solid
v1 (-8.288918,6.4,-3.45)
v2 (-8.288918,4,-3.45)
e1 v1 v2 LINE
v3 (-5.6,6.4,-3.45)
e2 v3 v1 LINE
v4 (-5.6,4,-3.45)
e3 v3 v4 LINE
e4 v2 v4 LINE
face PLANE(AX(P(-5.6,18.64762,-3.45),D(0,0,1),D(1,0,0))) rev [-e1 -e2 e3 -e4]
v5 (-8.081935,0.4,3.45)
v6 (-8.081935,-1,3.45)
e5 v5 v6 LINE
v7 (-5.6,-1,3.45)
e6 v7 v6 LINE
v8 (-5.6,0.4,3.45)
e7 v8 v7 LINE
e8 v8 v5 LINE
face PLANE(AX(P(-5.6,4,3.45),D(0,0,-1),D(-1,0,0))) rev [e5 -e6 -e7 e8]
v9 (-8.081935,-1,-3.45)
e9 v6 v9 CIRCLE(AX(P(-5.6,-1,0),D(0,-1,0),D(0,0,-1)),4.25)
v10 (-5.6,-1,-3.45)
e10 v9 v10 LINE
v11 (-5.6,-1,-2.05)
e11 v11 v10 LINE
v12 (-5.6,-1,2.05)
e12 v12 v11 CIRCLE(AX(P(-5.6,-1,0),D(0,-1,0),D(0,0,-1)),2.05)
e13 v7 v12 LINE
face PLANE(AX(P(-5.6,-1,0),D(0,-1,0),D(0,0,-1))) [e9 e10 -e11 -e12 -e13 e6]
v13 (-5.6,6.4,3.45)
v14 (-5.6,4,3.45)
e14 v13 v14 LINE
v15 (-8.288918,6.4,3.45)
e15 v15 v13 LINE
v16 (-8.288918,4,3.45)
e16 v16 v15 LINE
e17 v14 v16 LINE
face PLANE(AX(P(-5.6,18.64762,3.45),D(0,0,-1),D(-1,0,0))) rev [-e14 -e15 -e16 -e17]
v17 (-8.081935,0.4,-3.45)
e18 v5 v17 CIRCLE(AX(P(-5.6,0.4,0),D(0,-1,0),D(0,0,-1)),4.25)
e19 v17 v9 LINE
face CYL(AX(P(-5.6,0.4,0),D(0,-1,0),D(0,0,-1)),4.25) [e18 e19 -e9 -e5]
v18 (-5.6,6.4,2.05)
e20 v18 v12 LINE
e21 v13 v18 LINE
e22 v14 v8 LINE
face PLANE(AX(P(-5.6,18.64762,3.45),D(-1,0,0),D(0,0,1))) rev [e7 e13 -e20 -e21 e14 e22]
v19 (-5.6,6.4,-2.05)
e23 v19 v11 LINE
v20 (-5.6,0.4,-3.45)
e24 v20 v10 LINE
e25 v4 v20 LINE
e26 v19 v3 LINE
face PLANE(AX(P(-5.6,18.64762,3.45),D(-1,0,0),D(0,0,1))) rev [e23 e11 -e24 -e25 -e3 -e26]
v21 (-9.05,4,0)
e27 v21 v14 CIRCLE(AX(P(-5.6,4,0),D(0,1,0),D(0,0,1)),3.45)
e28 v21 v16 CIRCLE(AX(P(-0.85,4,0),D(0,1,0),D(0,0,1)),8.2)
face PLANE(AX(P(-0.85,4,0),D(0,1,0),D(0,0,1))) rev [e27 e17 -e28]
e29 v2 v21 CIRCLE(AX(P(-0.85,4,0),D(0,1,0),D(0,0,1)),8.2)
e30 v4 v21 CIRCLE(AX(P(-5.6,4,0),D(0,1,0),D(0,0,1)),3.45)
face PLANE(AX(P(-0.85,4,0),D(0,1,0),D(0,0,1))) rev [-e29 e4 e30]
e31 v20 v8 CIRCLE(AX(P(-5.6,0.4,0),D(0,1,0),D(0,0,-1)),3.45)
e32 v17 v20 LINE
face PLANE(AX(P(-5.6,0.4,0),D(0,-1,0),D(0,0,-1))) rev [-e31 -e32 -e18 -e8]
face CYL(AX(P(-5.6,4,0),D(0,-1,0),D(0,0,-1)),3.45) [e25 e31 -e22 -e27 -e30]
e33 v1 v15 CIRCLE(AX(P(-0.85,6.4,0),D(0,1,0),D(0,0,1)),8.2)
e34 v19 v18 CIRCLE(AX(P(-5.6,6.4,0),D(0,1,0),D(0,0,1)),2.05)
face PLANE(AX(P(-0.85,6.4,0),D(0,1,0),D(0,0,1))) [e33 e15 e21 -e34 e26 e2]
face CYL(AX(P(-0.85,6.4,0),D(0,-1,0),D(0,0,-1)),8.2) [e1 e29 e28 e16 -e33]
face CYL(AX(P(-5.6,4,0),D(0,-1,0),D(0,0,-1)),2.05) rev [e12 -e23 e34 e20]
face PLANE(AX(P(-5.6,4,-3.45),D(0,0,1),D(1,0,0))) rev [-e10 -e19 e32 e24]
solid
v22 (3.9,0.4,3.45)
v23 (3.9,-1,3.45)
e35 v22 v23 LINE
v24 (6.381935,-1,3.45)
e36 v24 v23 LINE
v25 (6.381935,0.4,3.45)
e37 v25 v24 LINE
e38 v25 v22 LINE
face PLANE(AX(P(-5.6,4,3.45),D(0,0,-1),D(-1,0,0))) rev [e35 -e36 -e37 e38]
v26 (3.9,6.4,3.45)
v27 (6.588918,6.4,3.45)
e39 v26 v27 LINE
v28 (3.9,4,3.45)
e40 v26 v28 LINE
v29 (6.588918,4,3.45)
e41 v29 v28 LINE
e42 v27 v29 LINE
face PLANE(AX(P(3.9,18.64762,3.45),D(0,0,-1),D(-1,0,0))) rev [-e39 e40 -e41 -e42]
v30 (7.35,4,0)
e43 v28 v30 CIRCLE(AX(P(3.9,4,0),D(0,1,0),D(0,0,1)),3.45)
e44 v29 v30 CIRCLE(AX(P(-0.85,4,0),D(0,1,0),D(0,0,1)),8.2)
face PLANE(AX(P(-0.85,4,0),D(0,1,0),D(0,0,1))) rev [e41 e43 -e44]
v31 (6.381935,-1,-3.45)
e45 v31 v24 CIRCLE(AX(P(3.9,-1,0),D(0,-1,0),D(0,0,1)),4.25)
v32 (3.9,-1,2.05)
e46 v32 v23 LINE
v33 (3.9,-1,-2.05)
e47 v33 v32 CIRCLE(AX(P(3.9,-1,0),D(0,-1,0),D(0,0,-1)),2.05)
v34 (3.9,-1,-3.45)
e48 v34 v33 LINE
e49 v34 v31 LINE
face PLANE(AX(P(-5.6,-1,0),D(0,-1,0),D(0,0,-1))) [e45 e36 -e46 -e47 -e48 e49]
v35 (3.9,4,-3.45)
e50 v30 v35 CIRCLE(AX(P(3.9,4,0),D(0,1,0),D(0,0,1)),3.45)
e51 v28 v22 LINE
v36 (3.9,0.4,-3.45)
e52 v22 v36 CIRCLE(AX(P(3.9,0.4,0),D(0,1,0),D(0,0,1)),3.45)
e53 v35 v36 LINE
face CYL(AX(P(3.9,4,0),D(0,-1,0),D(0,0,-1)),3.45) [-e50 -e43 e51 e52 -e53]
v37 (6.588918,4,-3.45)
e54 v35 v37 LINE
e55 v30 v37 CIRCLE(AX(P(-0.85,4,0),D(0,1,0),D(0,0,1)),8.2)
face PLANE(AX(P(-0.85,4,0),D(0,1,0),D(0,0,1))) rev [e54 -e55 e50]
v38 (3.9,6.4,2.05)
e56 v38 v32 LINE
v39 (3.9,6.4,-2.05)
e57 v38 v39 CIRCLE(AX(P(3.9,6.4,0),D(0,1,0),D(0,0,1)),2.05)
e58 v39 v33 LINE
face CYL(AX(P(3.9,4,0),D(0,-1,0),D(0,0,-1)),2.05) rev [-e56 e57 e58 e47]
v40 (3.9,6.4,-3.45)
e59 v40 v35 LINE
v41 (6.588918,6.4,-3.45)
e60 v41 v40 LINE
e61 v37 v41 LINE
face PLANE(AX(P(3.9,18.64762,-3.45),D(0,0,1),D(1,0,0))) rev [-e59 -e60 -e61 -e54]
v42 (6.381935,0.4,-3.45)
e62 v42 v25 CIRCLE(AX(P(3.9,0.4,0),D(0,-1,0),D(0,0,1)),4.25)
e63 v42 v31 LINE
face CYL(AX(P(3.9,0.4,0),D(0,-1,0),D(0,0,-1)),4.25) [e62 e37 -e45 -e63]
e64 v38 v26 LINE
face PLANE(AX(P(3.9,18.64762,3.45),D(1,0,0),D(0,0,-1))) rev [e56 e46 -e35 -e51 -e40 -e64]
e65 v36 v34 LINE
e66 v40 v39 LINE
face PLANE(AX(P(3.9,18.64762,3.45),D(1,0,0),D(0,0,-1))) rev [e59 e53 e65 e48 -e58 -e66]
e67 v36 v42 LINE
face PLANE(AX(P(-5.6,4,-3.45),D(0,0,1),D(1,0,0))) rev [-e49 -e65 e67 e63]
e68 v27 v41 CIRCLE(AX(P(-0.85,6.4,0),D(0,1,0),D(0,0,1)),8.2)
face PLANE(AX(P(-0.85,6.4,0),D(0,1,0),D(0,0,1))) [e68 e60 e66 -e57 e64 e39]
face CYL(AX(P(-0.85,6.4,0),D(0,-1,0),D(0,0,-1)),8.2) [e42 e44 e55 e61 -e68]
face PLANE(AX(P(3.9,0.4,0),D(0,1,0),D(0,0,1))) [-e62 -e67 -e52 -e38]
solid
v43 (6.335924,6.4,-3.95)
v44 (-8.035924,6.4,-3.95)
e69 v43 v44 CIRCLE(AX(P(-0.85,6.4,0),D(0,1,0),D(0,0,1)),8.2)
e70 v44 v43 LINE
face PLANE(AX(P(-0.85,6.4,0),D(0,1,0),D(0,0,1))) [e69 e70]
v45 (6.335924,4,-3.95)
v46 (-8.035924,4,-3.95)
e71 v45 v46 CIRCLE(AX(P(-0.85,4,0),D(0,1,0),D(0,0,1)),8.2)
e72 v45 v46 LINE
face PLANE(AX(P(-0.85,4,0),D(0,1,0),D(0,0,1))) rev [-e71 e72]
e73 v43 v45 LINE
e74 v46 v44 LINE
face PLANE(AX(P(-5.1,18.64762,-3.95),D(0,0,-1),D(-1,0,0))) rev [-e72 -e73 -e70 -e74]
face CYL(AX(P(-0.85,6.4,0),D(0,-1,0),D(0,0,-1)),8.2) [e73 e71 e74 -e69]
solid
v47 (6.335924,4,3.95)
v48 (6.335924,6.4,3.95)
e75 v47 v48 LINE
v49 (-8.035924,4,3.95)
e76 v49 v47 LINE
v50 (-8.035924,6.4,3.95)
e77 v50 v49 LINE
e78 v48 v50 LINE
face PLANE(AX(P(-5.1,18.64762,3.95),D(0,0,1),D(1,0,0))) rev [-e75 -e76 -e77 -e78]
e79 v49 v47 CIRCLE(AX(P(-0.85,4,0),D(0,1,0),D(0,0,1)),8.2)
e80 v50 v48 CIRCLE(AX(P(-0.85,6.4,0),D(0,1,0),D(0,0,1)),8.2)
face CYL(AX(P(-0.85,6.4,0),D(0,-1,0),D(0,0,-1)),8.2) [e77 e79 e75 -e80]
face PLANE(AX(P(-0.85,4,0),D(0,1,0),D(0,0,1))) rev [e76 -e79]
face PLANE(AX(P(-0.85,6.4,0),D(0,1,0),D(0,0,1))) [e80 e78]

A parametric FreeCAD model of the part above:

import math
import FreeCAD as App
import Part
import Sketcher
from FreeCAD import Vector

doc = App.newDocument("Part")
body = doc.addObject("PartDesign::Body", "Body")
body.AllowCompound = True

# Sketch on XZ plane
sketch1 = doc.addObject("Sketcher::SketchObject", "Sketch")
body.addObject(sketch1)
sketch1.AttachmentSupport = (doc.XZ_Plane, [""])
sketch1.MapMode = "FlatFace"
sketch1.addGeometry([
    Part.LineSegment(Vector(3.9, -3.45, 0), Vector(-5.6, -3.45, 0)),  # 0
    Part.ArcOfCircle(Part.Circle(Vector(-5.6, 0, 0), Vector(0, 0, 1), 3.45), math.radians(90), math.radians(270)),  # 1
    Part.LineSegment(Vector(-5.6, 3.45, 0), Vector(3.9, 3.45, 0)),  # 2
    Part.ArcOfCircle(Part.Circle(Vector(3.9, 0, 0), Vector(0, 0, 1), 3.45), math.radians(-90), math.radians(90)),  # 3
    Part.LineSegment(Vector(-5.6, -2.05, 0), Vector(3.9, -2.05, 0)),  # 4
    Part.ArcOfCircle(Part.Circle(Vector(3.9, 0, 0), Vector(0, 0, 1), 2.05), math.radians(-90), math.radians(90)),  # 5
    Part.LineSegment(Vector(3.9, 2.05, 0), Vector(-5.6, 2.05, 0)),  # 6
    Part.ArcOfCircle(Part.Circle(Vector(-5.6, 0, 0), Vector(0, 0, 1), 2.05), math.radians(90), math.radians(270)),  # 7
], False)
sketch1.addConstraint([
    Sketcher.Constraint("Tangent", 0, 2, 1, 2),
    Sketcher.Constraint("Tangent", 1, 1, 2, 1),
    Sketcher.Constraint("Tangent", 2, 2, 3, 2),
    Sketcher.Constraint("Tangent", 3, 1, 0, 1),
    Sketcher.Constraint("Tangent", 4, 2, 5, 1),
    Sketcher.Constraint("Tangent", 5, 2, 6, 1),
    Sketcher.Constraint("Tangent", 6, 2, 7, 1),
    Sketcher.Constraint("Tangent", 7, 2, 4, 1),
    Sketcher.Constraint("Horizontal", 0),
    Sketcher.Constraint("Horizontal", 2),
    Sketcher.Constraint("Horizontal", 4),
    Sketcher.Constraint("Horizontal", 6),
    Sketcher.Constraint("Coincident", 5, 3, 3, 3),
    Sketcher.Constraint("PointOnObject", 1, 3, -1),
    Sketcher.Constraint("Vertical", 7, 3, 0, 2),
    Sketcher.Constraint("Radius", 1, 3.45),
    Sketcher.Constraint("Radius", 5, 2.05),
    Sketcher.Constraint("DistanceX", 0, 2, 0, 1, 9.5),
    Sketcher.Constraint("DistanceX", 1, 3, -1, 1, 5.6),
])
pad1 = doc.addObject("PartDesign::Pad", "Pad")
body.addObject(pad1)
pad1.Profile = sketch1
pad1.Length = 4
pad1.Reversed = True

# Sketch on XZ plane
sketch2 = doc.addObject("Sketcher::SketchObject", "Sketch001")
body.addObject(sketch2)
sketch2.AttachmentSupport = (doc.XZ_Plane, [""])
sketch2.MapMode = "FlatFace"
sketch2.AttachmentOffset = App.Placement(Vector(0, 0, -4), App.Rotation())
sketch2.addGeometry([
    Part.Circle(Vector(-0.85, 0, 0), Vector(0, 0, 1), 8.2),  # 0
    Part.LineSegment(Vector(3.9, 2.05, 0), Vector(-5.6, 2.05, 0)),  # 1
    Part.ArcOfCircle(Part.Circle(Vector(-5.6, 0, 0), Vector(0, 0, 1), 2.05), math.radians(90), math.radians(270)),  # 2
    Part.LineSegment(Vector(-5.6, -2.05, 0), Vector(3.9, -2.05, 0)),  # 3
    Part.ArcOfCircle(Part.Circle(Vector(3.9, 0, 0), Vector(0, 0, 1), 2.05), math.radians(-90), math.radians(90)),  # 4
], False)
sketch2.addConstraint([
    Sketcher.Constraint("Tangent", 1, 2, 2, 1),
    Sketcher.Constraint("Tangent", 2, 2, 3, 1),
    Sketcher.Constraint("Tangent", 3, 2, 4, 1),
    Sketcher.Constraint("Tangent", 4, 2, 1, 1),
    Sketcher.Constraint("Horizontal", 1),
    Sketcher.Constraint("Horizontal", 3),
    Sketcher.Constraint("PointOnObject", 0, 3, -1),
    Sketcher.Constraint("PointOnObject", 2, 3, -1),
    Sketcher.Constraint("Diameter", 0, 16.4),
    Sketcher.Constraint("Radius", 2, 2.05),
    Sketcher.Constraint("DistanceX", 1, 2, 1, 1, 9.5),
    Sketcher.Constraint("DistanceX", 2, 3, -1, 1, 5.6),
    Sketcher.Constraint("DistanceX", 0, 3, -1, 1, 0.85),
])
pad2 = doc.addObject("PartDesign::Pad", "Pad001")
body.addObject(pad2)
pad2.Profile = sketch2
pad2.Length = 2.4
pad2.Reversed = True

# Sketch on XZ plane
sketch3 = doc.addObject("Sketcher::SketchObject", "Sketch002")
body.addObject(sketch3)
sketch3.AttachmentSupport = (doc.XZ_Plane, [""])
sketch3.MapMode = "FlatFace"
sketch3.addGeometry([
    Part.LineSegment(Vector(-5.6, -3.45, 0), Vector(3.9, -3.45, 0)),  # 0
    Part.ArcOfCircle(Part.Circle(Vector(3.9, 0, 0), Vector(0, 0, 1), 3.45), math.radians(-90), math.radians(90)),  # 1
    Part.LineSegment(Vector(3.9, 3.45, 0), Vector(-5.6, 3.45, 0)),  # 2
    Part.ArcOfCircle(Part.Circle(Vector(-5.6, 0, 0), Vector(0, 0, 1), 3.45), math.radians(90), math.radians(270)),  # 3
    Part.ArcOfCircle(Part.Circle(Vector(-5.6, 0, 0), Vector(0, 0, 1), 2.05), math.radians(90), math.radians(270)),  # 4
    Part.LineSegment(Vector(-5.6, 2.05, 0), Vector(3.9, 2.05, 0)),  # 5
    Part.ArcOfCircle(Part.Circle(Vector(3.9, 0, 0), Vector(0, 0, 1), 2.05), math.radians(-90), math.radians(90)),  # 6
    Part.LineSegment(Vector(3.9, -2.05, 0), Vector(-5.6, -2.05, 0)),  # 7
], False)
sketch3.addConstraint([
    Sketcher.Constraint("Tangent", 0, 2, 1, 1),
    Sketcher.Constraint("Tangent", 1, 2, 2, 1),
    Sketcher.Constraint("Tangent", 2, 2, 3, 1),
    Sketcher.Constraint("Tangent", 3, 2, 0, 1),
    Sketcher.Constraint("Tangent", 4, 1, 5, 1),
    Sketcher.Constraint("Tangent", 5, 2, 6, 2),
    Sketcher.Constraint("Tangent", 6, 1, 7, 1),
    Sketcher.Constraint("Tangent", 7, 2, 4, 2),
    Sketcher.Constraint("Horizontal", 0),
    Sketcher.Constraint("Horizontal", 2),
    Sketcher.Constraint("Horizontal", 5),
    Sketcher.Constraint("Horizontal", 7),
    Sketcher.Constraint("Coincident", 4, 3, 3, 3),
    Sketcher.Constraint("PointOnObject", 1, 3, -1),
    Sketcher.Constraint("Vertical", 6, 3, 0, 2),
    Sketcher.Constraint("Radius", 1, 3.45),
    Sketcher.Constraint("Radius", 4, 2.05),
    Sketcher.Constraint("DistanceX", 0, 1, 0, 2, 9.5),
    Sketcher.Constraint("DistanceX", -1, 1, 1, 3, 3.9),
])
pad3 = doc.addObject("PartDesign::Pad", "Pad002")
body.addObject(pad3)
pad3.Profile = sketch3
pad3.Length = 1

# Sketch on XZ plane
sketch4 = doc.addObject("Sketcher::SketchObject", "Sketch003")
body.addObject(sketch4)
sketch4.AttachmentSupport = (doc.XZ_Plane, [""])
sketch4.MapMode = "FlatFace"
sketch4.AttachmentOffset = App.Placement(Vector(0, 0, 1), App.Rotation())
sketch4.addGeometry([
    Part.LineSegment(Vector(3.9, -3.45, 0), Vector(6.381935, -3.45, 0)),  # 0
    Part.ArcOfCircle(Part.Circle(Vector(3.9, 0, 0), Vector(0, 0, 1), 4.25), math.radians(-54.268708), math.radians(54.268708)),  # 1
    Part.LineSegment(Vector(6.381935, 3.45, 0), Vector(3.9, 3.45, 0)),  # 2
    Part.ArcOfCircle(Part.Circle(Vector(3.9, 0, 0), Vector(0, 0, 1), 3.45), math.radians(-90), math.radians(90)),  # 3
    Part.LineSegment(Vector(-5.6, 3.45, 0), Vector(-8.081935, 3.45, 0)),  # 4
    Part.ArcOfCircle(Part.Circle(Vector(-5.6, 0, 0), Vector(0, 0, 1), 4.25), math.radians(125.731292), math.radians(234.268708)),  # 5
    Part.LineSegment(Vector(-8.081935, -3.45, 0), Vector(-5.6, -3.45, 0)),  # 6
    Part.ArcOfCircle(Part.Circle(Vector(-5.6, 0, 0), Vector(0, 0, 1), 3.45), math.radians(90), math.radians(270)),  # 7
], False)
sketch4.addConstraint([
    Sketcher.Constraint("Coincident", 0, 2, 1, 1),
    Sketcher.Constraint("Coincident", 1, 2, 2, 1),
    Sketcher.Constraint("Tangent", 2, 2, 3, 2),
    Sketcher.Constraint("Tangent", 3, 1, 0, 1),
    Sketcher.Constraint("Coincident", 4, 2, 5, 1),
    Sketcher.Constraint("Coincident", 5, 2, 6, 1),
    Sketcher.Constraint("Tangent", 6, 2, 7, 2),
    Sketcher.Constraint("Tangent", 7, 1, 4, 1),
    Sketcher.Constraint("Horizontal", 0),
    Sketcher.Constraint("Horizontal", 2),
    Sketcher.Constraint("Horizontal", 4),
    Sketcher.Constraint("Horizontal", 6),
    Sketcher.Constraint("Coincident", 3, 3, 1, 3),
    Sketcher.Constraint("Coincident", 7, 3, 5, 3),
    Sketcher.Constraint("Equal", 1, 5),
    Sketcher.Constraint("Equal", 3, 7),
    Sketcher.Constraint("PointOnObject", 1, 3, -1),
    Sketcher.Constraint("PointOnObject", 5, 3, -1),
    Sketcher.Constraint("Radius", 1, 4.25),
    Sketcher.Constraint("Radius", 3, 3.45),
    Sketcher.Constraint("DistanceX", -1, 1, 1, 3, 3.9),
    Sketcher.Constraint("DistanceX", 5, 3, -1, 1, 5.6),
])
pad4 = doc.addObject("PartDesign::Pad", "Pad003")
body.addObject(pad4)
pad4.Profile = sketch4
pad4.Length = 1.4
pad4.Reversed = True

# Sketch on XZ plane
sketch5 = doc.addObject("Sketcher::SketchObject", "Sketch004")
body.addObject(sketch5)
sketch5.AttachmentSupport = (doc.XZ_Plane, [""])
sketch5.MapMode = "FlatFace"
sketch5.AttachmentOffset = App.Placement(Vector(0, 0, 1), App.Rotation())
sketch5.addGeometry([
    Part.LineSegment(Vector(-5.1, -3.95, 0), Vector(-5.1, 3.95, 0)),  # 0
    Part.LineSegment(Vector(-5.1, 3.95, 0), Vector(-14.459177, 3.95, 0)),  # 1
    Part.LineSegment(Vector(-14.459177, 3.95, 0), Vector(-14.459177, 3.45, 0)),  # 2
    Part.LineSegment(Vector(-14.459177, 3.45, 0), Vector(-5.6, 3.45, 0)),  # 3
    Part.LineSegment(Vector(-5.6, 3.45, 0), Vector(-5.6, -3.45, 0)),  # 4
    Part.LineSegment(Vector(-5.6, -3.45, 0), Vector(-14.459177, -3.45, 0)),  # 5
    Part.LineSegment(Vector(-14.459177, -3.45, 0), Vector(-14.459177, -3.95, 0)),  # 6
    Part.LineSegment(Vector(-14.459177, -3.95, 0), Vector(-5.1, -3.95, 0)),  # 7
    Part.LineSegment(Vector(12.759177, 3.45, 0), Vector(12.759177, 3.95, 0)),  # 8
    Part.LineSegment(Vector(12.759177, 3.95, 0), Vector(3.4, 3.95, 0)),  # 9
    Part.LineSegment(Vector(3.4, 3.95, 0), Vector(3.4, -3.95, 0)),  # 10
    Part.LineSegment(Vector(3.4, -3.95, 0), Vector(12.759177, -3.95, 0)),  # 11
    Part.LineSegment(Vector(12.759177, -3.95, 0), Vector(12.759177, -3.45, 0)),  # 12
    Part.LineSegment(Vector(12.759177, -3.45, 0), Vector(3.9, -3.45, 0)),  # 13
    Part.LineSegment(Vector(3.9, -3.45, 0), Vector(3.9, 3.45, 0)),  # 14
    Part.LineSegment(Vector(3.9, 3.45, 0), Vector(12.759177, 3.45, 0)),  # 15
], False)
sketch5.addConstraint([
    Sketcher.Constraint("Coincident", 0, 2, 1, 1),
    Sketcher.Constraint("Coincident", 1, 2, 2, 1),
    Sketcher.Constraint("Coincident", 2, 2, 3, 1),
    Sketcher.Constraint("Coincident", 3, 2, 4, 1),
    Sketcher.Constraint("Coincident", 4, 2, 5, 1),
    Sketcher.Constraint("Coincident", 5, 2, 6, 1),
    Sketcher.Constraint("Coincident", 6, 2, 7, 1),
    Sketcher.Constraint("Coincident", 7, 2, 0, 1),
    Sketcher.Constraint("Coincident", 8, 2, 9, 1),
    Sketcher.Constraint("Coincident", 9, 2, 10, 1),
    Sketcher.Constraint("Coincident", 10, 2, 11, 1),
    Sketcher.Constraint("Coincident", 11, 2, 12, 1),
    Sketcher.Constraint("Coincident", 12, 2, 13, 1),
    Sketcher.Constraint("Coincident", 13, 2, 14, 1),
    Sketcher.Constraint("Coincident", 14, 2, 15, 1),
    Sketcher.Constraint("Coincident", 15, 2, 8, 1),
    Sketcher.Constraint("Vertical", 0),
    Sketcher.Constraint("Horizontal", 1),
    Sketcher.Constraint("Vertical", 2),
    Sketcher.Constraint("Horizontal", 3),
    Sketcher.Constraint("Vertical", 4),
    Sketcher.Constraint("Horizontal", 5),
    Sketcher.Constraint("Vertical", 6),
    Sketcher.Constraint("Horizontal", 7),
    Sketcher.Constraint("Vertical", 8),
    Sketcher.Constraint("Horizontal", 9),
    Sketcher.Constraint("Vertical", 10),
    Sketcher.Constraint("Horizontal", 11),
    Sketcher.Constraint("Vertical", 12),
    Sketcher.Constraint("Horizontal", 13),
    Sketcher.Constraint("Vertical", 14),
    Sketcher.Constraint("Horizontal", 15),
    Sketcher.Constraint("Symmetric", 2, 2, 5, 2, -1),
    Sketcher.Constraint("Symmetric", 8, 2, 11, 2, -1),
    Sketcher.Constraint("Horizontal", 1, 2, 8, 2),
    Sketcher.Constraint("Horizontal", 7, 2, 10, 2),
    Sketcher.Constraint("Horizontal", 5, 2, 12, 2),
    Sketcher.Constraint("Horizontal", 3, 2, 14, 2),
    Sketcher.Constraint("Equal", 7, 9),
    Sketcher.Constraint("Equal", 5, 13),
    Sketcher.Constraint("DistanceY", 0, 1, 0, 2, 7.9),
    Sketcher.Constraint("DistanceY", 2, 2, 2, 1, 0.5),
    Sketcher.Constraint("DistanceX", 3, 2, 9, 2, 9.0),
    Sketcher.Constraint("DistanceX", 0, 2, -1, 1, 5.1),
    Sketcher.Constraint("DistanceX", 3, 2, -1, 1, 5.6),
    Sketcher.Constraint("DistanceX", 1, 2, 1, 1, 9.359177),
])
pocket1 = doc.addObject("PartDesign::Pocket", "Pocket")
body.addObject(pocket1)
pocket1.Profile = sketch5
pocket1.Length = 7.4

# Sketch on XZ plane
sketch6 = doc.addObject("Sketcher::SketchObject", "Sketch005")
body.addObject(sketch6)
sketch6.AttachmentSupport = (doc.XZ_Plane, [""])
sketch6.MapMode = "FlatFace"
sketch6.AttachmentOffset = App.Placement(Vector(0, 0, 1), App.Rotation())
sketch6.addGeometry([
    Part.LineSegment(Vector(-5.1, 3.95, 0), Vector(-5.1, 2.05, 0)),  # 0
    Part.LineSegment(Vector(-5.1, 2.05, 0), Vector(3.4, 2.05, 0)),  # 1
    Part.LineSegment(Vector(3.4, 2.05, 0), Vector(3.4, 3.95, 0)),  # 2
    Part.LineSegment(Vector(3.4, 3.95, 0), Vector(-5.1, 3.95, 0)),  # 3
    Part.LineSegment(Vector(-5.1, -2.05, 0), Vector(-5.1, -3.95, 0)),  # 4
    Part.LineSegment(Vector(-5.1, -3.95, 0), Vector(3.4, -3.95, 0)),  # 5
    Part.LineSegment(Vector(3.4, -3.95, 0), Vector(3.4, -2.05, 0)),  # 6
    Part.LineSegment(Vector(3.4, -2.05, 0), Vector(-5.1, -2.05, 0)),  # 7
], False)
sketch6.addConstraint([
    Sketcher.Constraint("Coincident", 0, 2, 1, 1),
    Sketcher.Constraint("Coincident", 1, 2, 2, 1),
    Sketcher.Constraint("Coincident", 2, 2, 3, 1),
    Sketcher.Constraint("Coincident", 3, 2, 0, 1),
    Sketcher.Constraint("Coincident", 4, 2, 5, 1),
    Sketcher.Constraint("Coincident", 5, 2, 6, 1),
    Sketcher.Constraint("Coincident", 6, 2, 7, 1),
    Sketcher.Constraint("Coincident", 7, 2, 4, 1),
    Sketcher.Constraint("Vertical", 0),
    Sketcher.Constraint("Horizontal", 1),
    Sketcher.Constraint("Vertical", 2),
    Sketcher.Constraint("Horizontal", 3),
    Sketcher.Constraint("Vertical", 4),
    Sketcher.Constraint("Horizontal", 5),
    Sketcher.Constraint("Vertical", 6),
    Sketcher.Constraint("Horizontal", 7),
    Sketcher.Constraint("Symmetric", 3, 2, 4, 2, -1),
    Sketcher.Constraint("Symmetric", 1, 2, 6, 2, -1),
    Sketcher.Constraint("DistanceX", 1, 1, 1, 2, 8.5),
    Sketcher.Constraint("DistanceY", 0, 2, 0, 1, 1.9),
    Sketcher.Constraint("DistanceY", 4, 2, 0, 2, 6.0),
    Sketcher.Constraint("DistanceX", 0, 2, -1, 1, 5.1),
])
pocket2 = doc.addObject("PartDesign::Pocket", "Pocket001")
body.addObject(pocket2)
pocket2.Profile = sketch6
pocket2.Length = 7.4

doc.recompute()
